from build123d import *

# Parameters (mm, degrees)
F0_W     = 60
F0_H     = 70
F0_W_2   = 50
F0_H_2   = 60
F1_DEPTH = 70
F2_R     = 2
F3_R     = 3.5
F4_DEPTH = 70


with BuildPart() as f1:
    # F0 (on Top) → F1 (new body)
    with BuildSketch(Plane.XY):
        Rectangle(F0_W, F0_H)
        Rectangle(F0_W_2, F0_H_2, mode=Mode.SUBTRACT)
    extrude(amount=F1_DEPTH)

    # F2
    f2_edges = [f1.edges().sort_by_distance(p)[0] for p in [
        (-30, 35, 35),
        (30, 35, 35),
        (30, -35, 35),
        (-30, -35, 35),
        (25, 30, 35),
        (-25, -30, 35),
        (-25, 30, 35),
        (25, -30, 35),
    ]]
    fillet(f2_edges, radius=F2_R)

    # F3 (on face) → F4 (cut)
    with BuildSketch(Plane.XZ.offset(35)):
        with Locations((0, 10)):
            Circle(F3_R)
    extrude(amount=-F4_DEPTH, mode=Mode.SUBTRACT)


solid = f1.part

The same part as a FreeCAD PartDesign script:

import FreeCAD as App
import Part
import Sketcher
from FreeCAD import Vector
Q = App.Units.Quantity


def edges_at(feature, points):
    """Names of the edges that pass closest to the given points."""
    edges = feature.Shape.Edges
    near = lambda p: min(range(len(edges)), key=lambda i: edges[i].distToShape(Part.Vertex(*p))[0])
    return sorted({f"Edge{near(p) + 1}" for p in points})


def add_polygon(sketch, points):
    """Adds a closed chain of lines whose ends are joined by coincident constraints."""
    first, n = sketch.GeometryCount, len(points)
    for a, b in zip(points, points[1:] + points[:1]):
        sketch.addGeometry(Part.LineSegment(App.Vector(*a, 0), App.Vector(*b, 0)), False)
    for i in range(n):
        sketch.addConstraint(Sketcher.Constraint("Coincident", first + i, 2, first + (i + 1) % n, 1))

doc = App.newDocument("Part")
body = doc.addObject("PartDesign::Body", "Body")

# Sketch on XY plane
sketch1 = body.newObject("Sketcher::SketchObject", "Sketch")
sketch1.AttachmentSupport = (doc.getObject("XY_Plane"), [""])
sketch1.MapMode = "FlatFace"
add_polygon(sketch1, [(-30, 35), (-30, -35), (30, -35), (30, 35)])  # lines 0-3
add_polygon(sketch1, [(25, -30), (-25, -30), (-25, 30), (25, 30)])  # lines 4-7
sketch1.addConstraint(Sketcher.Constraint("Vertical", 0))
sketch1.addConstraint(Sketcher.Constraint("Horizontal", 1))
sketch1.addConstraint(Sketcher.Constraint("Vertical", 2))
sketch1.addConstraint(Sketcher.Constraint("Horizontal", 3))
sketch1.addConstraint(Sketcher.Constraint("Horizontal", 4))
sketch1.addConstraint(Sketcher.Constraint("Vertical", 5))
sketch1.addConstraint(Sketcher.Constraint("Horizontal", 6))
sketch1.addConstraint(Sketcher.Constraint("Vertical", 7))
sketch1.addConstraint(Sketcher.Constraint("Symmetric", 0, 2, 2, 2, -1, 1))
sketch1.addConstraint(Sketcher.Constraint("Symmetric", 4, 2, 6, 2, -1, 1))
sketch1.addConstraint(Sketcher.Constraint("Equal", 3, 5))
sketch1.addConstraint(Sketcher.Constraint("DistanceX", 1, 1, 1, 2, Q("60 mm")))
sketch1.addConstraint(Sketcher.Constraint("DistanceX", 4, 2, 4, 1, Q("50 mm")))
sketch1.addConstraint(Sketcher.Constraint("DistanceY", 0, 2, 0, 1, Q("70 mm")))
pad1 = body.newObject("PartDesign::Pad", "Pad")
pad1.Profile = sketch1
pad1.Length = 70
doc.recompute()

fillet = body.newObject("PartDesign::Fillet", "Fillet")
fillet.Base = (pad1, edges_at(pad1, [
    (-30, 35, 35),
    (30, 35, 35),
    (30, -35, 35),
    (-30, -35, 35),
    (25, 30, 35),
    (-25, -30, 35),
    (-25, 30, 35),
    (25, -30, 35),
]))
fillet.Radius = 2

# Sketch on XZ plane
sketch2 = body.newObject("Sketcher::SketchObject", "Sketch001")
sketch2.AttachmentSupport = (doc.getObject("XZ_Plane"), [""])
sketch2.MapMode = "FlatFace"
sketch2.AttachmentOffset = App.Placement(Vector(0, 0, 35), App.Rotation())
sketch2.addGeometry(Part.Circle(Vector(0, 10, 0), Vector(0, 0, 1), 3.5), False)
sketch2.addConstraint(Sketcher.Constraint("PointOnObject", 0, 3, -2))
sketch2.addConstraint(Sketcher.Constraint("Diameter", 0, Q("7 mm")))
sketch2.addConstraint(Sketcher.Constraint("DistanceY", -1, 1, 0, 3, Q("10 mm")))
pocket1 = body.newObject("PartDesign::Pocket", "Pocket")
pocket1.Profile = sketch2
pocket1.Length = 70

doc.recompute()
